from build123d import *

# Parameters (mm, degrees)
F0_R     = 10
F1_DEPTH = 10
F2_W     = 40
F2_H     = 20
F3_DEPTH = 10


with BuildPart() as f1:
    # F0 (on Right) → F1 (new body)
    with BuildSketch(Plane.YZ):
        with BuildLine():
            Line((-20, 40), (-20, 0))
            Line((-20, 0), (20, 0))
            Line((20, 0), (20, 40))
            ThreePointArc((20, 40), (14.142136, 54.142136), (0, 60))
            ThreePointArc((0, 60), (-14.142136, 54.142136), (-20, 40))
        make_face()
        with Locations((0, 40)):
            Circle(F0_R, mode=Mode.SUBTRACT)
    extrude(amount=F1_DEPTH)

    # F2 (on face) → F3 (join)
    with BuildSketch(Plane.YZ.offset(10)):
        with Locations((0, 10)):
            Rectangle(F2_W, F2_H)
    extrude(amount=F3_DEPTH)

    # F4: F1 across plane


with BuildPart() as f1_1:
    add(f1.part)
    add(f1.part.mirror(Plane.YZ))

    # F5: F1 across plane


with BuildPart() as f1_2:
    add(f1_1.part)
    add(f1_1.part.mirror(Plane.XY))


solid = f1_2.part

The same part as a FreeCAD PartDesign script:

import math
import FreeCAD as App
import Part
import Sketcher
from FreeCAD import Vector
Q = App.Units.Quantity


def add_polygon(sketch, points):
    """Adds a closed chain of lines whose ends are joined by coincident constraints."""
    first, n = sketch.GeometryCount, len(points)
    for a, b in zip(points, points[1:] + points[:1]):
        sketch.addGeometry(Part.LineSegment(App.Vector(*a, 0), App.Vector(*b, 0)), False)
    for i in range(n):
        sketch.addConstraint(Sketcher.Constraint("Coincident", first + i, 2, first + (i + 1) % n, 1))

doc = App.newDocument("Part")
params = doc.addObject("Spreadsheet::Sheet", "Params")
for row, (alias, value) in enumerate([
    ("sketch1_diameter", "20 mm"),
    ("sketch1_radius", "19.999999 mm"),
    ("pad1_length", "10 mm"),
    ("sketch2_width", "40 mm"),
    ("sketch2_height", "20 mm"),
    ("pad2_length", "10 mm"),
], start=1):
    params.set(f"A{row}", alias)
    params.set(f"B{row}", "=" + value)
    params.setAlias(f"B{row}", alias)

body = doc.addObject("PartDesign::Body", "Body")

# Sketch on YZ plane
sketch1 = body.newObject("Sketcher::SketchObject", "Sketch")
sketch1.AttachmentSupport = (doc.getObject("YZ_Plane"), [""])
sketch1.MapMode = "FlatFace"
sketch1.addGeometry([
    Part.LineSegment(Vector(-20, 40, 0), Vector(-20, 0, 0)),  # 0
    Part.LineSegment(Vector(-20, 0, 0), Vector(20, 0, 0)),  # 1
    Part.LineSegment(Vector(20, 0, 0), Vector(20, 40, 0)),  # 2
    Part.ArcOfCircle(Part.Circle(Vector(0.000001, 40.000001, 0), Vector(0, 0, 1), 19.999999), math.radians(-0.000004), math.radians(90.000004)),  # 3
    Part.ArcOfCircle(Part.Circle(Vector(-0.000001, 40.000001, 0), Vector(0, 0, 1), 19.999999), math.radians(89.999996), math.radians(180.000004)),  # 4
    Part.Circle(Vector(0, 40, 0), Vector(0, 0, 1), 10),  # 5
], False)
sketch1.addConstraint([
    Sketcher.Constraint("Coincident", 0, 2, 1, 1),
    Sketcher.Constraint("Coincident", 1, 2, 2, 1),
    Sketcher.Constraint("Tangent", 2, 2, 3, 1),
    Sketcher.Constraint("Tangent", 3, 2, 4, 1),
    Sketcher.Constraint("Tangent", 4, 2, 0, 1),
    Sketcher.Constraint("Vertical", 0),
    Sketcher.Constraint("Horizontal", 1),
    Sketcher.Constraint("Vertical", 2),
    Sketcher.Constraint("Coincident", 5, 3, 3, 3),
    Sketcher.Constraint("Equal", 3, 4),
    Sketcher.Constraint("Symmetric", 0, 2, 1, 2, -1, 1),
    Sketcher.Constraint("PointOnObject", 3, 2, -2),
    Sketcher.Constraint("Equal", 1, 0),
    Sketcher.Constraint("Diameter", 5, Q("20 mm")),
    Sketcher.Constraint("Radius", 3, Q("19.999999 mm")),
])
sketch1.setExpression("Constraints[13]", "Params.sketch1_diameter")
sketch1.setExpression("Constraints[14]", "Params.sketch1_radius")
pad1 = body.newObject("PartDesign::Pad", "Pad")
pad1.Profile = sketch1
pad1.setExpression("Length", "Params.pad1_length")

# Sketch on YZ plane
sketch2 = body.newObject("Sketcher::SketchObject", "Sketch001")
sketch2.AttachmentSupport = (doc.getObject("YZ_Plane"), [""])
sketch2.MapMode = "FlatFace"
sketch2.AttachmentOffset = App.Placement(Vector(0, 0, 10), App.Rotation())
add_polygon(sketch2, [(-20, 20), (-20, 0), (20, 0), (20, 20)])  # lines 0-3
sketch2.addConstraint([
    Sketcher.Constraint("Vertical", 0),
    Sketcher.Constraint("Horizontal", 1),
    Sketcher.Constraint("Vertical", 2),
    Sketcher.Constraint("Horizontal", 3),
    Sketcher.Constraint("Symmetric", 0, 2, 1, 2, -1, 1),
    Sketcher.Constraint("DistanceX", 1, 1, 1, 2, Q("40 mm")),
    Sketcher.Constraint("DistanceY", 0, 2, 0, 1, Q("20 mm")),
])
sketch2.setExpression("Constraints[9]", "Params.sketch2_width")
sketch2.setExpression("Constraints[10]", "Params.sketch2_height")
pad2 = body.newObject("PartDesign::Pad", "Pad001")
pad2.Profile = sketch2
pad2.setExpression("Length", "Params.pad2_length")
body2 = doc.addObject("PartDesign::Body", "Body001")
doc.recompute()

body2.BaseFeature = body
doc.recompute()

mirroring = doc.addObject("Part::Mirroring", "Mirroring")
mirroring.Source = body
mirroring.Base = Vector(0, 0, 0)
mirroring.Normal = Vector(1, 0, 0)
body3 = doc.addObject("PartDesign::Body", "Body002")
body3.BaseFeature = mirroring
boolean = body2.newObject("PartDesign::Boolean", "Boolean")
boolean.Type = "Fuse"
boolean.addObjects([body3])
doc.recompute()
body4 = doc.addObject("PartDesign::Body", "Body003")
doc.recompute()

body4.BaseFeature = body2
doc.recompute()

mirroring2 = doc.addObject("Part::Mirroring", "Mirroring001")
mirroring2.Source = body2
mirroring2.Base = Vector(0, 0, 0)
mirroring2.Normal = Vector(0, 0, 1)
body5 = doc.addObject("PartDesign::Body", "Body004")
body5.BaseFeature = mirroring2
boolean2 = body4.newObject("PartDesign::Boolean", "Boolean001")
boolean2.Type = "Fuse"
boolean2.addObjects([body5])
doc.recompute()
mirroring.Visibility = False
mirroring2.Visibility = False

doc.recompute()
